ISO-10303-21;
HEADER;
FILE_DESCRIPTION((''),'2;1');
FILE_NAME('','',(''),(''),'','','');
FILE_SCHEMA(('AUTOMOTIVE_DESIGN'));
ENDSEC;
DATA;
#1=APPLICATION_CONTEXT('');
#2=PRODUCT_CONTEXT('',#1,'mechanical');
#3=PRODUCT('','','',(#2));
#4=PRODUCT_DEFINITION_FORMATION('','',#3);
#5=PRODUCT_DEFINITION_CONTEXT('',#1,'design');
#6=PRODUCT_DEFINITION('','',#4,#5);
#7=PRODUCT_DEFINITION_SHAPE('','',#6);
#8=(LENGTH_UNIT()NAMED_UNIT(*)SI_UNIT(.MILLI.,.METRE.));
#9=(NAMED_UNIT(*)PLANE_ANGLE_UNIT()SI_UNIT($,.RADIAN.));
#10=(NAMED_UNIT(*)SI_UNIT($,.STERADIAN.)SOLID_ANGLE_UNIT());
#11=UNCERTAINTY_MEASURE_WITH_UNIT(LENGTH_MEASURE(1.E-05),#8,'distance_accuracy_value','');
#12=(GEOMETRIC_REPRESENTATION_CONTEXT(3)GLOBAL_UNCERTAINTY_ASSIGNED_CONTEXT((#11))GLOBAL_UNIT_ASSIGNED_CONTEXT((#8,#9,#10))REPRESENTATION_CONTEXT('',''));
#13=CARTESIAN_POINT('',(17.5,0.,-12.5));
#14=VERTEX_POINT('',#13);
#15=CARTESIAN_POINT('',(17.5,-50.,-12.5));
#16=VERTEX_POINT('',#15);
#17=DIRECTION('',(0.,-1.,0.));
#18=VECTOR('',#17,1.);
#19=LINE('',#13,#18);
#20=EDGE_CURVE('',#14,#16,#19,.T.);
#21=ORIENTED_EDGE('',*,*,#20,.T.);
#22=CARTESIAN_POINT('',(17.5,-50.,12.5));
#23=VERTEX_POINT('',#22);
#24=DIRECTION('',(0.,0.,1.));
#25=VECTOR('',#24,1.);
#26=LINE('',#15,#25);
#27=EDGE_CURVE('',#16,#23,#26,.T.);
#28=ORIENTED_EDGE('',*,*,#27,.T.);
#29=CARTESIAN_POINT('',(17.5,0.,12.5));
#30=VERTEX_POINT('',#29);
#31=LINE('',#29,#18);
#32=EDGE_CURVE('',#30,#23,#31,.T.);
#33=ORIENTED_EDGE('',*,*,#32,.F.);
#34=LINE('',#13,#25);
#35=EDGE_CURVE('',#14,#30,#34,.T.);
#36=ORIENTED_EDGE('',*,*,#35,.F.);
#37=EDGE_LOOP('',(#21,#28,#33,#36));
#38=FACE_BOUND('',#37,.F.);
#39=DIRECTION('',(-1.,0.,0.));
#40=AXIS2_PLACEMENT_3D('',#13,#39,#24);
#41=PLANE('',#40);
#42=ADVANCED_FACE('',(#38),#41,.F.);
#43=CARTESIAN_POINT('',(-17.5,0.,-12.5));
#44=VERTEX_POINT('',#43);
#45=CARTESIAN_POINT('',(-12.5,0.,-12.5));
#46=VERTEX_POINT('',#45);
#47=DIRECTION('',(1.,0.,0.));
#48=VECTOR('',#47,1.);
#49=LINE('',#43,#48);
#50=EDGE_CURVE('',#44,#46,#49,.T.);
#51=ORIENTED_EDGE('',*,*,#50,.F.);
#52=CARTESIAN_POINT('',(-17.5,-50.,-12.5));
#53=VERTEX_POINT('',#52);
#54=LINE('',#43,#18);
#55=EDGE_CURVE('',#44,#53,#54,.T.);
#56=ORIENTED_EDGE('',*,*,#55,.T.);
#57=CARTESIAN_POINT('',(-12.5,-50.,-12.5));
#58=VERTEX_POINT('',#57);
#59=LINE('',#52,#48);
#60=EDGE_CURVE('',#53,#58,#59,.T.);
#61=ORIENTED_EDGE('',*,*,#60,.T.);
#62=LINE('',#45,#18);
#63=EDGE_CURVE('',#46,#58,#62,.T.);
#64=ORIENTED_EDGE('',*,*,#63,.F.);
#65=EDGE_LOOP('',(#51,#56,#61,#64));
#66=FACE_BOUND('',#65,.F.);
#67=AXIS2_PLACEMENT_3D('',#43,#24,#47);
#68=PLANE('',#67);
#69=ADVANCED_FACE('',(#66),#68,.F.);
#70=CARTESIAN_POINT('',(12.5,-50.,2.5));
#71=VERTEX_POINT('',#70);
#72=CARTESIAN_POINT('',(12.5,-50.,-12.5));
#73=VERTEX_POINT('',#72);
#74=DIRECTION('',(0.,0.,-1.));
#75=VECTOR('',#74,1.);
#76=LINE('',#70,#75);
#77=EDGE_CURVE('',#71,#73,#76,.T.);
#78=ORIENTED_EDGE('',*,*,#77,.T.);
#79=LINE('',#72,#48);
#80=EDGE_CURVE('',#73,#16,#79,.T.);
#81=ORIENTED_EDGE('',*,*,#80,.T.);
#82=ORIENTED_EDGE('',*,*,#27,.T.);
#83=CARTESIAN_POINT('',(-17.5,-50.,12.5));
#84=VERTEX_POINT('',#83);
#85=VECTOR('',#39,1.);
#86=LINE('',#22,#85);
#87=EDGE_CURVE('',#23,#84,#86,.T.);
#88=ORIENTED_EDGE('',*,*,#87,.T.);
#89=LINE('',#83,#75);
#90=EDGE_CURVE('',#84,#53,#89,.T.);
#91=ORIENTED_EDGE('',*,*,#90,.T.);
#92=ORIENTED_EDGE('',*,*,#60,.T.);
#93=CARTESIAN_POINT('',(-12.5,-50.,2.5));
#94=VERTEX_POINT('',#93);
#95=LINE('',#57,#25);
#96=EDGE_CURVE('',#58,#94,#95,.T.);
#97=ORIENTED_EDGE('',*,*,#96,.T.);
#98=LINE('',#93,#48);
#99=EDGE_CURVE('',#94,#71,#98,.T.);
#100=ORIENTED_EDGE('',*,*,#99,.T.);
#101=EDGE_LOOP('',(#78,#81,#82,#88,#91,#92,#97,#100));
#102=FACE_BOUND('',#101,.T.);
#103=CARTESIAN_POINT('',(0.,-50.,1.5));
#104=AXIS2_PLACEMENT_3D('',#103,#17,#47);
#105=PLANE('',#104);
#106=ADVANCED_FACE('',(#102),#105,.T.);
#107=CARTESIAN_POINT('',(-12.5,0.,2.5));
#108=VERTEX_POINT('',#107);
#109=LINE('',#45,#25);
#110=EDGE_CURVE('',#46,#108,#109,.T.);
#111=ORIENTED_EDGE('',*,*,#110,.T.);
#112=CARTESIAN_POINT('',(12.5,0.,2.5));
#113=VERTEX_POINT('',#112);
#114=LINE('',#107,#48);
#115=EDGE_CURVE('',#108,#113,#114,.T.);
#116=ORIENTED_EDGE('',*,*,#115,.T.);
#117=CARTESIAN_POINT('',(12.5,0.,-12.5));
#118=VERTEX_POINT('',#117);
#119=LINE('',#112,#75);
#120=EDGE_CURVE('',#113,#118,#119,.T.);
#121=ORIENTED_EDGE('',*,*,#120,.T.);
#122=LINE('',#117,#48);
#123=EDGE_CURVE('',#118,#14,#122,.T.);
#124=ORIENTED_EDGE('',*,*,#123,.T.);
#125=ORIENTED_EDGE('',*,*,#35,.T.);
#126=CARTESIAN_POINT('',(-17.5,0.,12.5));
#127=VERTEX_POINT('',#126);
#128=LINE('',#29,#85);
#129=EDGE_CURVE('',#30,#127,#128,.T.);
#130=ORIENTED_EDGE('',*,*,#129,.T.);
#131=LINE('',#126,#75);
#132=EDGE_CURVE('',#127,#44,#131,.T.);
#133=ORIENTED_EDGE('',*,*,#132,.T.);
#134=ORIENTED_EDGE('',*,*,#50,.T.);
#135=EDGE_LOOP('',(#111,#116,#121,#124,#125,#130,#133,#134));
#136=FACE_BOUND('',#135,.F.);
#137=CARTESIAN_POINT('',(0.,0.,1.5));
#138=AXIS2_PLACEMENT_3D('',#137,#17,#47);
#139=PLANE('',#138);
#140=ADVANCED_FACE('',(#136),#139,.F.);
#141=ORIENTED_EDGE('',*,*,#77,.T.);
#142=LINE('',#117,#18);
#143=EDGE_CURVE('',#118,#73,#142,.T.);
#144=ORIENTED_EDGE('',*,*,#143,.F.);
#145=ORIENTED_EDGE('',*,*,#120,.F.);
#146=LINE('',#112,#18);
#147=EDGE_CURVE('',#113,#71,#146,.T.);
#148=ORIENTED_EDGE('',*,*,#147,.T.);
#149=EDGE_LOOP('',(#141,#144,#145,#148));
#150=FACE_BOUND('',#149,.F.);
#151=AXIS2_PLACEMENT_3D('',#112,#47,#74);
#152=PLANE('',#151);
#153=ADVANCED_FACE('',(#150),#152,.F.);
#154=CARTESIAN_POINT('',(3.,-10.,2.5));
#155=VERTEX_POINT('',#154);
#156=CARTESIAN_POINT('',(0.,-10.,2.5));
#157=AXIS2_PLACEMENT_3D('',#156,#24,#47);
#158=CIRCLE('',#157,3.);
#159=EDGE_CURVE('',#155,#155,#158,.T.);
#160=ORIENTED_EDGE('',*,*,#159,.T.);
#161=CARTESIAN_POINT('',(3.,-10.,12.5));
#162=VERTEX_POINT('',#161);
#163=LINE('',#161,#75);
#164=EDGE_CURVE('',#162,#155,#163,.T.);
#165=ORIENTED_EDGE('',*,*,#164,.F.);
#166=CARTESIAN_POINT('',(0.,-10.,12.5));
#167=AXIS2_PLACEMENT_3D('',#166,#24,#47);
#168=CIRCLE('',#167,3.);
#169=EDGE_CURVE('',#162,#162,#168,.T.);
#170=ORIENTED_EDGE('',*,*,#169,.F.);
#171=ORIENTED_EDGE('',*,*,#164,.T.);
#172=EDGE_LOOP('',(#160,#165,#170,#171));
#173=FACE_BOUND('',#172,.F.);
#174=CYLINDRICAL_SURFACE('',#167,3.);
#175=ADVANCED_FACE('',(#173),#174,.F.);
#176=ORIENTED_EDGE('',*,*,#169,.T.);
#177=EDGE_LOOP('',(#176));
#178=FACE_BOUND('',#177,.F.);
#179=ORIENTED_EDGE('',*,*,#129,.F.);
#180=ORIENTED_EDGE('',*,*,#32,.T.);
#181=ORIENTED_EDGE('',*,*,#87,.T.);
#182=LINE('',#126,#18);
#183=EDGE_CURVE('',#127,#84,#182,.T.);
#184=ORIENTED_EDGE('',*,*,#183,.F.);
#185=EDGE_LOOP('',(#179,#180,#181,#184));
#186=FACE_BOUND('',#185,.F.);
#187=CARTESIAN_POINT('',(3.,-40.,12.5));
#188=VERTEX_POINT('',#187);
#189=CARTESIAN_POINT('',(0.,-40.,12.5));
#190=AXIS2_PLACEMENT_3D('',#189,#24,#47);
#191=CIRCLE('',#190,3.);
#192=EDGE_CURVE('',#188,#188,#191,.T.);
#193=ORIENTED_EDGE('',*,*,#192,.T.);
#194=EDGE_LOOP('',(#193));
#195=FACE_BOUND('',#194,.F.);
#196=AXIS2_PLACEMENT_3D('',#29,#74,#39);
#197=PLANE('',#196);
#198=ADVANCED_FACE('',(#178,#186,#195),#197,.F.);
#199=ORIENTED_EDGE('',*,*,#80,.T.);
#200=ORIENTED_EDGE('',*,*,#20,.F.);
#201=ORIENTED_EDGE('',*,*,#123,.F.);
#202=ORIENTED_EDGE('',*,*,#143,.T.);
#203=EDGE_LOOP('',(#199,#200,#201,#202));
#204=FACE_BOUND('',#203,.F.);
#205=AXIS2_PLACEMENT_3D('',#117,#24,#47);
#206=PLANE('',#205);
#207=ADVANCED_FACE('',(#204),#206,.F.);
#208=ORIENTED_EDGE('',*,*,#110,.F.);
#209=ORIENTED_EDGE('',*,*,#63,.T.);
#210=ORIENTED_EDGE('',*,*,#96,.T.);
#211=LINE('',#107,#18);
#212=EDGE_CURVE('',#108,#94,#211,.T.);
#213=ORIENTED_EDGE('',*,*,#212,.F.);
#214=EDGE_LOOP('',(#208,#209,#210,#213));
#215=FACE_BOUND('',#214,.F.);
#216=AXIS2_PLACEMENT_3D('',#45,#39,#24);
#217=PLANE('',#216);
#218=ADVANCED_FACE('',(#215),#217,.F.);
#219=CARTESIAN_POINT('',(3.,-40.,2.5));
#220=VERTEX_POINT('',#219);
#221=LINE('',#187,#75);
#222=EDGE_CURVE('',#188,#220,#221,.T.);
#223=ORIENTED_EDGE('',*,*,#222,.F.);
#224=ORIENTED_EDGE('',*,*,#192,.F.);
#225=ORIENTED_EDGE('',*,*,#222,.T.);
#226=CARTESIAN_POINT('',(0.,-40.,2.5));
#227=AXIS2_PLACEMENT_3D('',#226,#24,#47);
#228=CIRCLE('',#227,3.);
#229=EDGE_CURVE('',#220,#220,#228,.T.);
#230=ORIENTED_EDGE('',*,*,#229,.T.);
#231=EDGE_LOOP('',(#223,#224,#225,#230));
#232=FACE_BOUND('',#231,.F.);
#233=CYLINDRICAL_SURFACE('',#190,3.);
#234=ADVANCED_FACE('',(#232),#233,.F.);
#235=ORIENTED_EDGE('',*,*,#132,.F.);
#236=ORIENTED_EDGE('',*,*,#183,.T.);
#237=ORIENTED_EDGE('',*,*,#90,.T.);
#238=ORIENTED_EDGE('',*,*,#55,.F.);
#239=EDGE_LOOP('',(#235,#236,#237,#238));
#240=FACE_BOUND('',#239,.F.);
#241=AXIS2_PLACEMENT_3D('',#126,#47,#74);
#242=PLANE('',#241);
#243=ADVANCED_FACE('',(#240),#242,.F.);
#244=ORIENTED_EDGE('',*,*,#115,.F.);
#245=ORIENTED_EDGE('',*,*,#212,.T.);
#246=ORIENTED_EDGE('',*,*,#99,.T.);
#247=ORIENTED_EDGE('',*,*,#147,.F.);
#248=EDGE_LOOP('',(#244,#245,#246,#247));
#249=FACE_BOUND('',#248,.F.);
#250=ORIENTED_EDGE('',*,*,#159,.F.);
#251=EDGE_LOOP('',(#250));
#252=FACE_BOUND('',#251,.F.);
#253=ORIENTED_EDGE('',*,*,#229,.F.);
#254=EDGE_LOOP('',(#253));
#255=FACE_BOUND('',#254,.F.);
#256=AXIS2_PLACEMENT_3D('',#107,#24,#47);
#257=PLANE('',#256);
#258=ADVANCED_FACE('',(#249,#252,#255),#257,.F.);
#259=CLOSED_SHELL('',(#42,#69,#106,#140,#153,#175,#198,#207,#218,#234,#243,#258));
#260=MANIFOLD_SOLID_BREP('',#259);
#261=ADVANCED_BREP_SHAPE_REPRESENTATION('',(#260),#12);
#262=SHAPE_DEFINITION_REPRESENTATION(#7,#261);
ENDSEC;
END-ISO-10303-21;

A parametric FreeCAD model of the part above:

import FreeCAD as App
import Part
import Sketcher
from FreeCAD import Vector

doc = App.newDocument("Part")
body = doc.addObject("PartDesign::Body", "Body")

# Sketch on XZ plane
sketch1 = body.newObject("Sketcher::SketchObject", "Sketch")
sketch1.AttachmentSupport = (doc.getObject("XZ_Plane"), [""])
sketch1.MapMode = "FlatFace"
sketch1.addGeometry([
    Part.LineSegment(Vector(-17.5, 12.5, 0), Vector(-17.5, -12.5, 0)),  # 0
    Part.LineSegment(Vector(-17.5, -12.5, 0), Vector(-12.5, -12.5, 0)),  # 1
    Part.LineSegment(Vector(-12.5, -12.5, 0), Vector(-12.5, 2.5, 0)),  # 2
    Part.LineSegment(Vector(-12.5, 2.5, 0), Vector(12.5, 2.5, 0)),  # 3
    Part.LineSegment(Vector(12.5, 2.5, 0), Vector(12.5, -12.5, 0)),  # 4
    Part.LineSegment(Vector(12.5, -12.5, 0), Vector(17.5, -12.5, 0)),  # 5
    Part.LineSegment(Vector(17.5, -12.5, 0), Vector(17.5, 12.5, 0)),  # 6
    Part.LineSegment(Vector(17.5, 12.5, 0), Vector(-17.5, 12.5, 0)),  # 7
], False)
sketch1.addConstraint([
    Sketcher.Constraint("Coincident", 0, 2, 1, 1),
    Sketcher.Constraint("Coincident", 1, 2, 2, 1),
    Sketcher.Constraint("Coincident", 2, 2, 3, 1),
    Sketcher.Constraint("Coincident", 3, 2, 4, 1),
    Sketcher.Constraint("Coincident", 4, 2, 5, 1),
    Sketcher.Constraint("Coincident", 5, 2, 6, 1),
    Sketcher.Constraint("Coincident", 6, 2, 7, 1),
    Sketcher.Constraint("Coincident", 7, 2, 0, 1),
    Sketcher.Constraint("Vertical", 0),
    Sketcher.Constraint("Horizontal", 1),
    Sketcher.Constraint("Vertical", 2),
    Sketcher.Constraint("Horizontal", 3),
    Sketcher.Constraint("Vertical", 4),
    Sketcher.Constraint("Horizontal", 5),
    Sketcher.Constraint("Vertical", 6),
    Sketcher.Constraint("Horizontal", 7),
    Sketcher.Constraint("Symmetric", 0, 2, 6, 2, -1, 1),
    Sketcher.Constraint("Symmetric", 1, 2, 4, 2, -2),
    Sketcher.Constraint("Equal", 3, 0),
    Sketcher.Constraint("DistanceX", 1, 1, 1, 2, 5.0),
    Sketcher.Constraint("DistanceX", 3, 1, 3, 2, 25.0),
    Sketcher.Constraint("DistanceY", 2, 1, 2, 2, 15.0),
])
pad1 = body.newObject("PartDesign::Pad", "Pad")
pad1.Profile = sketch1
pad1.Length = 50

# Sketch on XY plane
sketch2 = body.newObject("Sketcher::SketchObject", "Sketch001")
sketch2.AttachmentSupport = (doc.getObject("XY_Plane"), [""])
sketch2.MapMode = "FlatFace"
sketch2.AttachmentOffset = App.Placement(Vector(0, 0, 12.5), App.Rotation())
sketch2.addGeometry([
    Part.Circle(Vector(0, -10, 0), Vector(0, 0, 1), 3),
    Part.Circle(Vector(0, -40, 0), Vector(0, 0, 1), 3),
], False)
sketch2.addConstraint([
    Sketcher.Constraint("Equal", 0, 1),
    Sketcher.Constraint("PointOnObject", 0, 3, -2),
    Sketcher.Constraint("PointOnObject", 1, 3, -2),
    Sketcher.Constraint("Diameter", 0, 6.0),
    Sketcher.Constraint("DistanceY", 0, 3, -1, 1, 10.0),
    Sketcher.Constraint("DistanceY", 1, 3, -1, 1, 40.0),
])
pocket1 = body.newObject("PartDesign::Pocket", "Pocket")
pocket1.Profile = sketch2
pocket1.Length = 25

doc.recompute()
